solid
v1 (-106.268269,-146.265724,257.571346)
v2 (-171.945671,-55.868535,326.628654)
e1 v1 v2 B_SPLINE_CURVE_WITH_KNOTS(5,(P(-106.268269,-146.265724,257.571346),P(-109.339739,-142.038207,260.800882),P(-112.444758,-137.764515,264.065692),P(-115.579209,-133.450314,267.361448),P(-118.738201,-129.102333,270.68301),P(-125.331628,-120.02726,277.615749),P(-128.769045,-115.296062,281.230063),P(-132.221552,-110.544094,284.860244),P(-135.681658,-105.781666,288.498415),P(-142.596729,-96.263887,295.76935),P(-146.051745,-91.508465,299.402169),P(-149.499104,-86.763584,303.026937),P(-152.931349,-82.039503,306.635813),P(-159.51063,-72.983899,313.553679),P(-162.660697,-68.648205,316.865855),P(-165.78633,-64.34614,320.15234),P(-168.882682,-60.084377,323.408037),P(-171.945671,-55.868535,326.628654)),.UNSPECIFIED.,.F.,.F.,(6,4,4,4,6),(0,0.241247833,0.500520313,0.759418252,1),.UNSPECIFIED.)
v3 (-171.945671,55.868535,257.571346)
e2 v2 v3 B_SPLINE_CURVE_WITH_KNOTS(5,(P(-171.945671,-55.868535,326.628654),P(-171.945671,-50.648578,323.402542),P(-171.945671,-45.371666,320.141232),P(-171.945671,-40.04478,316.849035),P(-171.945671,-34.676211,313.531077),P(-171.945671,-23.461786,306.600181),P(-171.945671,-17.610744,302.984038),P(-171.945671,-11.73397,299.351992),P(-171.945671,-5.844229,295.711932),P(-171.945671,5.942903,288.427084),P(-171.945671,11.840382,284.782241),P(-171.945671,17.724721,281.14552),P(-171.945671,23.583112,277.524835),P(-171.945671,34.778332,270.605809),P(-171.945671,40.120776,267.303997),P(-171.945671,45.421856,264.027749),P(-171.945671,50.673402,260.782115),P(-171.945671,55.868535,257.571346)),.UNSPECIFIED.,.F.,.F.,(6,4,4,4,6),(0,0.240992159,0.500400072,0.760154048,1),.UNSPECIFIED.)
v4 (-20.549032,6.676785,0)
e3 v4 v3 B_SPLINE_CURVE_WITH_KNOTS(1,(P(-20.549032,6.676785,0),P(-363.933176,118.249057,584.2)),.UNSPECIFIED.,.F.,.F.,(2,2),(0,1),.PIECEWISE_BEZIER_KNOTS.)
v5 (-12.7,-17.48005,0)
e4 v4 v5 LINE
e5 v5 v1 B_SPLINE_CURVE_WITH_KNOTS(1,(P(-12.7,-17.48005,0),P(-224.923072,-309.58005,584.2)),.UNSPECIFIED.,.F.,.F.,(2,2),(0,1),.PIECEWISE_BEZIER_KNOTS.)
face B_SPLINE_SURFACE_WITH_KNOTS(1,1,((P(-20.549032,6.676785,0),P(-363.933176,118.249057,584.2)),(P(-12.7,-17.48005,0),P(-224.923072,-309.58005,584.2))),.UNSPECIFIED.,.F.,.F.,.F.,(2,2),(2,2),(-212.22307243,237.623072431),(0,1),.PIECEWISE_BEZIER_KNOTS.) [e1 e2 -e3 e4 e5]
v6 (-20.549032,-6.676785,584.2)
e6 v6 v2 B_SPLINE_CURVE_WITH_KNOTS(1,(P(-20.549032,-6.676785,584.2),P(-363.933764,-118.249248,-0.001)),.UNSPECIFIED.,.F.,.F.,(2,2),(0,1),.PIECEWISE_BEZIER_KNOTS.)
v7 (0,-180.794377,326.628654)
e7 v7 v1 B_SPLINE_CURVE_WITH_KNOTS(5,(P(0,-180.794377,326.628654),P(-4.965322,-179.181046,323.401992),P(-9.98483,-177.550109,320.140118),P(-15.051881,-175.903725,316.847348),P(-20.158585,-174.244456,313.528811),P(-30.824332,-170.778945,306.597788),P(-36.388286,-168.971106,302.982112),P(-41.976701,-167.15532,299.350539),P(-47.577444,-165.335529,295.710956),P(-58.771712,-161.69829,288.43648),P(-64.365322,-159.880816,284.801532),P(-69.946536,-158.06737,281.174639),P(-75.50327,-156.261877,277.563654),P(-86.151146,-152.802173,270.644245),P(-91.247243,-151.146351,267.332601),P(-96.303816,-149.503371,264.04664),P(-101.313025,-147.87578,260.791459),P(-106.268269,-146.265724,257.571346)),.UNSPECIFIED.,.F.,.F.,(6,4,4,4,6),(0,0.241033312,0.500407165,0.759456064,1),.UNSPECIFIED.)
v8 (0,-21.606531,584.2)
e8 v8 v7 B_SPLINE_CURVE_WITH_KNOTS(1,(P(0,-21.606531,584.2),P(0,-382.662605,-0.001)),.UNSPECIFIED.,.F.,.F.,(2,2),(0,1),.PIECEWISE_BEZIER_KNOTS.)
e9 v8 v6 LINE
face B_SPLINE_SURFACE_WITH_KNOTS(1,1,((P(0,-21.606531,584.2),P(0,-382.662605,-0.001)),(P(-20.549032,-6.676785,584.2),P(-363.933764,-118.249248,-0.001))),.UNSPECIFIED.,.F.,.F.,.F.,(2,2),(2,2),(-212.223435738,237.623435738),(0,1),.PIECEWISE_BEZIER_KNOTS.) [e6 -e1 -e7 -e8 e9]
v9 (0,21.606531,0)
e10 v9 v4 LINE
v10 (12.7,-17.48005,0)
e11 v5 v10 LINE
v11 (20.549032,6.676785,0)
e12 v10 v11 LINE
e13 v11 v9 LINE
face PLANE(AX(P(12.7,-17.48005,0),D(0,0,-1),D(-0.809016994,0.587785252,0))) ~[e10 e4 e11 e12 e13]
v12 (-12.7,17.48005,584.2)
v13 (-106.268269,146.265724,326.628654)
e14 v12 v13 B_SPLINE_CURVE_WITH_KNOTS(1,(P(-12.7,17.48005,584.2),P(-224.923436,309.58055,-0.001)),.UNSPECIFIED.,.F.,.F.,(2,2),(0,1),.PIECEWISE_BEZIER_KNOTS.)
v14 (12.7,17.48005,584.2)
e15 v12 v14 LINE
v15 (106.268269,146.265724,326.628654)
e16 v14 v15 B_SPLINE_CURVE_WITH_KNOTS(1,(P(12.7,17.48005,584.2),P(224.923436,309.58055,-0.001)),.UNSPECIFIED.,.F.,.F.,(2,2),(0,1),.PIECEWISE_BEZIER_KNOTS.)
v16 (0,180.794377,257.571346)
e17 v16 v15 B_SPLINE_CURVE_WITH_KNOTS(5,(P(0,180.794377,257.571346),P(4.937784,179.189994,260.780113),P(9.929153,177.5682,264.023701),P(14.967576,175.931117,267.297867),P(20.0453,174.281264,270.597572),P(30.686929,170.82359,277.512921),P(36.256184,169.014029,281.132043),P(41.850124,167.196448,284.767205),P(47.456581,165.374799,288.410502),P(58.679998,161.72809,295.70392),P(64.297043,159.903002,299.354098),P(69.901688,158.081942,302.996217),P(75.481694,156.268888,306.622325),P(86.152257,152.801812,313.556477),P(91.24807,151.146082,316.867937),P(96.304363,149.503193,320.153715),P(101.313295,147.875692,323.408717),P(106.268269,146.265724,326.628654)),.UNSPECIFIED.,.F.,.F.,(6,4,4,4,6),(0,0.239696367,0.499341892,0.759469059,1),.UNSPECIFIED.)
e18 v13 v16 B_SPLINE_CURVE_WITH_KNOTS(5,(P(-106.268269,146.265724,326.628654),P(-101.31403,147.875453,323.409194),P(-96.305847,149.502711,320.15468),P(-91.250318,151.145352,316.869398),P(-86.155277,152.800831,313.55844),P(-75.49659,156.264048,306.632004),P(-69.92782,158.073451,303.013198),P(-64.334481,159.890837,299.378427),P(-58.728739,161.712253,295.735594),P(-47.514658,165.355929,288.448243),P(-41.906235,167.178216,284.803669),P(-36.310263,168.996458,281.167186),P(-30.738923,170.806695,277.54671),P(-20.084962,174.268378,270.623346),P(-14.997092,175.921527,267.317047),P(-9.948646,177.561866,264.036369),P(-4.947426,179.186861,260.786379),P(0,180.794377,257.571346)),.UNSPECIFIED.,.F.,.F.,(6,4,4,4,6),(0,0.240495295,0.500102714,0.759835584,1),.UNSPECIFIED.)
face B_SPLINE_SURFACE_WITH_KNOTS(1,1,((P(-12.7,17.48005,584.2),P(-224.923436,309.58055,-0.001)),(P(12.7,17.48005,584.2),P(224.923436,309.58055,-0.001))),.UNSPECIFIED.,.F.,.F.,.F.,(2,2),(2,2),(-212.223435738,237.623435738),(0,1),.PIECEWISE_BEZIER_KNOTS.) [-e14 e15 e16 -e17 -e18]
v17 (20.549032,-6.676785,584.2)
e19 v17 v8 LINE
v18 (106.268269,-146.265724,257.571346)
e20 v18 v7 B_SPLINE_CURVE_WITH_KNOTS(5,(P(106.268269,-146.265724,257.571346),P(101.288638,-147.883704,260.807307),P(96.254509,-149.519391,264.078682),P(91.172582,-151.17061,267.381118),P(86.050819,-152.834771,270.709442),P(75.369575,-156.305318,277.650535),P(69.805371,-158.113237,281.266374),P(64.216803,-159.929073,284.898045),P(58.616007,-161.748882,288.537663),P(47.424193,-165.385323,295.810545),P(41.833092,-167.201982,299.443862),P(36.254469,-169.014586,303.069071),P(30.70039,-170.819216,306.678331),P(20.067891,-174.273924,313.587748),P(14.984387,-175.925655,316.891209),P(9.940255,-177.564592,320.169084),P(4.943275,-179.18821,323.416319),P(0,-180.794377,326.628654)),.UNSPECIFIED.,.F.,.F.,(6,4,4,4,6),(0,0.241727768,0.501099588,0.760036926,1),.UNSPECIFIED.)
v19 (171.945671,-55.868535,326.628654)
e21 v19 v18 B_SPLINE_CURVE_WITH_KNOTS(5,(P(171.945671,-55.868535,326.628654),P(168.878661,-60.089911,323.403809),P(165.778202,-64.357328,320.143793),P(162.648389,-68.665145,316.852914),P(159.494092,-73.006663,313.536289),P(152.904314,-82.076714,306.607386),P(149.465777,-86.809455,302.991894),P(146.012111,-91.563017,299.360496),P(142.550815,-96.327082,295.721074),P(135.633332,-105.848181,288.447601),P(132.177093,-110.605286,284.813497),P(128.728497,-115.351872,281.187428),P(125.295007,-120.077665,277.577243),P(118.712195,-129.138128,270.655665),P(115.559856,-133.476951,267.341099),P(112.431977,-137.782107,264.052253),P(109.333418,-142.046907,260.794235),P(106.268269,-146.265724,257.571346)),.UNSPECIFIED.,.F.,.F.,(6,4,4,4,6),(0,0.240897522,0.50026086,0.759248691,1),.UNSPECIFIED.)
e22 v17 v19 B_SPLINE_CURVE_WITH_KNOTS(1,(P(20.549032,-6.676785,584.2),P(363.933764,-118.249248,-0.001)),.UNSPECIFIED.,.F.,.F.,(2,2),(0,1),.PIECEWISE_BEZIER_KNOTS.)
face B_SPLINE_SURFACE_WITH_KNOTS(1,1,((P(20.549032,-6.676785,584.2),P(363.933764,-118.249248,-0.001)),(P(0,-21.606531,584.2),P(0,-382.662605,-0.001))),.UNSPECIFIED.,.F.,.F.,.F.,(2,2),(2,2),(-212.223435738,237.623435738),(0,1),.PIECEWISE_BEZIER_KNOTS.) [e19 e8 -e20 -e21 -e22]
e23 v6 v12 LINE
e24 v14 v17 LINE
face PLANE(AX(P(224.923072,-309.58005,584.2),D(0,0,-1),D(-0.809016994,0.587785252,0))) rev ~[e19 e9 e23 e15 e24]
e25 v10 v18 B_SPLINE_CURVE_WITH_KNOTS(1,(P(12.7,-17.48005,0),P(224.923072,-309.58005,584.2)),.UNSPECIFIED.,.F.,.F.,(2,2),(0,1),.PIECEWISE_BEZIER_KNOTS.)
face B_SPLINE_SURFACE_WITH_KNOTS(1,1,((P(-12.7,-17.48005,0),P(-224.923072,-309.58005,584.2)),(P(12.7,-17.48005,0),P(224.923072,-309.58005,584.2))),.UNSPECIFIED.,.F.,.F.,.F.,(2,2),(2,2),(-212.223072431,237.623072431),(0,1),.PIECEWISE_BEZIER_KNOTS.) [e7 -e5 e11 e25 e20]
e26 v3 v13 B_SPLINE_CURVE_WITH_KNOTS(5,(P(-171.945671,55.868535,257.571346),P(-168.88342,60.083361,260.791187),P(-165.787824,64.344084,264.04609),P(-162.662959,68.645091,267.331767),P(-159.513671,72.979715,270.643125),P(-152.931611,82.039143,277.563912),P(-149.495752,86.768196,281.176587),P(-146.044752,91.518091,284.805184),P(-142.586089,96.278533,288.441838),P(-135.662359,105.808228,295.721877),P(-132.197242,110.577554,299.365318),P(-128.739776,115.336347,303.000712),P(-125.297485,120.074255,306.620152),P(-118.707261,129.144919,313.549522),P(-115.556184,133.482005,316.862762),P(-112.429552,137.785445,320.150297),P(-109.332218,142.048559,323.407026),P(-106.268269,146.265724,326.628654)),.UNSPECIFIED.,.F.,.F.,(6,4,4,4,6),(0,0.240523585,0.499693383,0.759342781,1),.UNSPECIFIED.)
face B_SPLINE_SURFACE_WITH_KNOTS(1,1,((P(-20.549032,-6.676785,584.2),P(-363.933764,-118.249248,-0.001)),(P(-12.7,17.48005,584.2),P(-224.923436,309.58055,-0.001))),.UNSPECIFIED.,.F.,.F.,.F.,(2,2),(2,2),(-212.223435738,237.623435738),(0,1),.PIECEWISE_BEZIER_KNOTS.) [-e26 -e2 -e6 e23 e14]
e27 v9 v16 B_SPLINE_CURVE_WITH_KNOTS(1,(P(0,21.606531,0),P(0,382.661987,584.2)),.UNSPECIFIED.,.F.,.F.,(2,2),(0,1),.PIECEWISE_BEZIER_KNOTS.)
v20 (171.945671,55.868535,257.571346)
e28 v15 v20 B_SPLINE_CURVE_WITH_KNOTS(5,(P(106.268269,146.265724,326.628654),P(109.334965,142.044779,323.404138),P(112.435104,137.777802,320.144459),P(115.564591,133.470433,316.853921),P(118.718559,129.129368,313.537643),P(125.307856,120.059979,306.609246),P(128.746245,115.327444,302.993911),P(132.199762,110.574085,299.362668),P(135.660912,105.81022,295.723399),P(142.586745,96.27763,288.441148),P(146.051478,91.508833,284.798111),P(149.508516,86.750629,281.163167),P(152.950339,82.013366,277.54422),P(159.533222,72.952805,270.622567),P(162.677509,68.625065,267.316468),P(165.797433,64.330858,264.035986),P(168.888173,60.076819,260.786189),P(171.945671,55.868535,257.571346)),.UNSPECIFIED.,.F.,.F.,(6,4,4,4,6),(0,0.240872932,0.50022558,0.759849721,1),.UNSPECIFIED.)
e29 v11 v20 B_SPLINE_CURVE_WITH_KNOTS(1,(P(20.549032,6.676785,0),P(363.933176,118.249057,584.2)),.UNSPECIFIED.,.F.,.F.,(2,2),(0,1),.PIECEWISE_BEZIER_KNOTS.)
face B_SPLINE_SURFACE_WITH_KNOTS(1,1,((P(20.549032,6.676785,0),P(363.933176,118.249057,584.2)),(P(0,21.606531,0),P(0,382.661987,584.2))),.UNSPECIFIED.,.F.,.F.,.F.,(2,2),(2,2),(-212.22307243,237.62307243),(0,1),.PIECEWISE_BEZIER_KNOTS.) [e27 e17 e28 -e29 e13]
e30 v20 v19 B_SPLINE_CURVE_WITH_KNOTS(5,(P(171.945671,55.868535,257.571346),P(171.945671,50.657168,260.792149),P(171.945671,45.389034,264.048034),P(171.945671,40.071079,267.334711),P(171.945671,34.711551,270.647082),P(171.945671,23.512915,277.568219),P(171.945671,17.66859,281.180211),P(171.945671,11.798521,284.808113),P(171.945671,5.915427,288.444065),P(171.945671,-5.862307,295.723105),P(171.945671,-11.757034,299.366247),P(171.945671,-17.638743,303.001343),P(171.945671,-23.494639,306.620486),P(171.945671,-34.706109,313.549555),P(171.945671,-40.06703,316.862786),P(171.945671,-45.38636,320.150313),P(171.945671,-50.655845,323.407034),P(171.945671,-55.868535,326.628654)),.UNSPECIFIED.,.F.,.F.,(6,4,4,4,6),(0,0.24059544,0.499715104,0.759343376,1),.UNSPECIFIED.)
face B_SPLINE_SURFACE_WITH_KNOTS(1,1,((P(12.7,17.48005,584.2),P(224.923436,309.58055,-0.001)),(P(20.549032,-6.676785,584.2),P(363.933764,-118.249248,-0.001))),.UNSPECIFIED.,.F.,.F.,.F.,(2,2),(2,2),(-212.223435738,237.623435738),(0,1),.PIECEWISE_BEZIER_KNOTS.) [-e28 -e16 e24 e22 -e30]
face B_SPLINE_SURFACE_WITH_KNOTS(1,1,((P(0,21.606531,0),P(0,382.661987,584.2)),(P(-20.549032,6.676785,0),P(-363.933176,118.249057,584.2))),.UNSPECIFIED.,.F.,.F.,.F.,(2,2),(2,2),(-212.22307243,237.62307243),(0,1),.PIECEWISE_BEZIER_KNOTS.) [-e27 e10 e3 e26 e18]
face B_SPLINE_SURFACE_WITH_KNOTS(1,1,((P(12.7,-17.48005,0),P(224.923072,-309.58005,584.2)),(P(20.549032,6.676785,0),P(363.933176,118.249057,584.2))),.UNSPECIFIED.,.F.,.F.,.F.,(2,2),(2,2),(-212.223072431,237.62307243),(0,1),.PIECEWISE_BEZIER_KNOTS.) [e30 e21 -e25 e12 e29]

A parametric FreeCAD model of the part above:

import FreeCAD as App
import Part
import Sketcher
Q = App.Units.Quantity

doc = App.newDocument("Part")
body = doc.addObject("PartDesign::Body", "Body")

# Sketch on XY plane
sketch1 = body.newObject("Sketcher::SketchObject", "Sketch")
sketch1.AttachmentSupport = (doc.getObject("XY_Plane"), [""])
sketch1.MapMode = "FlatFace"
sketch1.addGeometry([
    Part.LineSegment(App.Vector(12.7, -17.48005, 0), App.Vector(20.549032, 6.676785, 0)),  # 0
    Part.LineSegment(App.Vector(20.549032, 6.676785, 0), App.Vector(0, 21.606531, 0)),  # 1
    Part.LineSegment(App.Vector(0, 21.606531, 0), App.Vector(-20.549032, 6.676785, 0)),  # 2
    Part.LineSegment(App.Vector(-20.549032, 6.676785, 0), App.Vector(-12.7, -17.48005, 0)),  # 3
    Part.LineSegment(App.Vector(-12.7, -17.48005, 0), App.Vector(12.7, -17.48005, 0)),  # 4
], False)
sketch1.addConstraint([
    Sketcher.Constraint("Coincident", 0, 2, 1, 1),
    Sketcher.Constraint("Coincident", 1, 2, 2, 1),
    Sketcher.Constraint("Coincident", 2, 2, 3, 1),
    Sketcher.Constraint("Coincident", 3, 2, 4, 1),
    Sketcher.Constraint("Coincident", 4, 2, 0, 1),
    Sketcher.Constraint("Horizontal", 4),
    Sketcher.Constraint("Symmetric", 0, 2, 2, 2, -2),
    Sketcher.Constraint("PointOnObject", 1, 2, -2),
    Sketcher.Constraint("Equal", 0, 1),
    Sketcher.Constraint("Equal", 2, 3),
    Sketcher.Constraint("DistanceX", 4, 1, 4, 2, Q("1 in")),
    Sketcher.Constraint("Distance", 0, Q("1 in")),
    Sketcher.Constraint("Angle", 0, Q("72 deg")),
    Sketcher.Constraint("DistanceY", -1, 1, 1, 2, Q("21.606531 mm")),
])
pad1 = body.newObject("PartDesign::Pad", "Pad")
pad1.Profile = sketch1
pad1.Length = Q("23 in")
pad1.TaperAngle = 26.565051

# Sketch on XY plane
sketch2 = body.newObject("Sketcher::SketchObject", "Sketch001")
sketch2.AttachmentSupport = (doc.getObject("XY_Plane"), [""])
sketch2.MapMode = "FlatFace"
sketch2.AttachmentOffset = App.Placement(App.Vector(0, 0, 23 * 25.4), App.Rotation())
sketch2.addGeometry([
    Part.LineSegment(App.Vector(0, 382.661987, 0), App.Vector(-363.933176, 118.249057, 0)),  # 0
    Part.LineSegment(App.Vector(-363.933176, 118.249057, 0), App.Vector(-224.923072, -309.58005, 0)),  # 1
    Part.LineSegment(App.Vector(-224.923072, -309.58005, 0), App.Vector(224.923072, -309.58005, 0)),  # 2
    Part.LineSegment(App.Vector(224.923072, -309.58005, 0), App.Vector(363.933176, 118.249057, 0)),  # 3
    Part.LineSegment(App.Vector(363.933176, 118.249057, 0), App.Vector(0, 382.661987, 0)),  # 4
    Part.LineSegment(App.Vector(-20.549032, -6.676785, 0), App.Vector(-12.7, 17.48005, 0)),  # 5
    Part.LineSegment(App.Vector(-12.7, 17.48005, 0), App.Vector(12.7, 17.48005, 0)),  # 6
    Part.LineSegment(App.Vector(12.7, 17.48005, 0), App.Vector(20.549032, -6.676785, 0)),  # 7
    Part.LineSegment(App.Vector(20.549032, -6.676785, 0), App.Vector(0, -21.606531, 0)),  # 8
    Part.LineSegment(App.Vector(0, -21.606531, 0), App.Vector(-20.549032, -6.676785, 0)),  # 9
], False)
sketch2.addConstraint([
    Sketcher.Constraint("Coincident", 0, 2, 1, 1),
    Sketcher.Constraint("Coincident", 1, 2, 2, 1),
    Sketcher.Constraint("Coincident", 2, 2, 3, 1),
    Sketcher.Constraint("Coincident", 3, 2, 4, 1),
    Sketcher.Constraint("Coincident", 4, 2, 0, 1),
    Sketcher.Constraint("Coincident", 5, 2, 6, 1),
    Sketcher.Constraint("Coincident", 6, 2, 7, 1),
    Sketcher.Constraint("Coincident", 7, 2, 8, 1),
    Sketcher.Constraint("Coincident", 8, 2, 9, 1),
    Sketcher.Constraint("Coincident", 9, 2, 5, 1),
    Sketcher.Constraint("Horizontal", 2),
    Sketcher.Constraint("Horizontal", 6),
    Sketcher.Constraint("Symmetric", 0, 2, 3, 2, -2),
    Sketcher.Constraint("Symmetric", 7, 2, 9, 2, -2),
    Sketcher.Constraint("PointOnObject", 4, 2, -2),
    Sketcher.Constraint("PointOnObject", 8, 2, -2),
    Sketcher.Constraint("Parallel", 3, 5),
    Sketcher.Constraint("Parallel", 1, 7),
    Sketcher.Constraint("Parallel", 0, 8),
    Sketcher.Constraint("Equal", 0, 1),
    Sketcher.Constraint("Equal", 1, 3),
    Sketcher.Constraint("Equal", 7, 8),
    Sketcher.Constraint("DistanceX", 6, 1, 6, 2, Q("1 in")),
    Sketcher.Constraint("Distance", 5, Q("1 in")),
    Sketcher.Constraint("Angle", 0, Q("-144 deg")),
    Sketcher.Constraint("DistanceY", 1, 2, 5, 2, Q("327.060101 mm")),
    Sketcher.Constraint("DistanceX", 2, 1, 2, 2, Q("449.846145 mm")),
    Sketcher.Constraint("DistanceY", 1, 2, -1, 1, Q("309.58005 mm")),
])
pocket1 = body.newObject("PartDesign::Pocket", "Pocket")
pocket1.Profile = sketch2
pocket1.Length = 584.201
pocket1.TaperAngle = 26.565051

doc.recompute()
